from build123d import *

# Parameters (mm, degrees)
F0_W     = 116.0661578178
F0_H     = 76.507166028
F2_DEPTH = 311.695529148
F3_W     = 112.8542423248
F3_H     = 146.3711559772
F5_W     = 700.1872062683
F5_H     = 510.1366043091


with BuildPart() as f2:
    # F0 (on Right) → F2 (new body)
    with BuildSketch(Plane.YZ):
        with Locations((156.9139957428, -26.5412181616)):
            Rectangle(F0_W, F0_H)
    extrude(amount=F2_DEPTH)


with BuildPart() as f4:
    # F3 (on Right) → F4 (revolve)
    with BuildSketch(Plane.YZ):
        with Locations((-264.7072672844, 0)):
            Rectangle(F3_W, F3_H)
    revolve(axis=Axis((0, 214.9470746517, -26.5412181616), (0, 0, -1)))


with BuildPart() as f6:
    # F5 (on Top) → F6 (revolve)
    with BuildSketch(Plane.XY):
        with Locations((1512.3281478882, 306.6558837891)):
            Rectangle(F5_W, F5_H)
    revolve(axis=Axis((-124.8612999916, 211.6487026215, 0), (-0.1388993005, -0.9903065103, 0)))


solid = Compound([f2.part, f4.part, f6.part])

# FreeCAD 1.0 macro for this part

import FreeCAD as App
import Part
import Sketcher
Q = App.Units.Quantity

doc = App.newDocument("Part")
body = doc.addObject("PartDesign::Body", "Body")

# Sketch on YZ plane
sketch1 = body.newObject("Sketcher::SketchObject", "Sketch")
sketch1.AttachmentSupport = (doc.getObject("YZ_Plane"), [""])
sketch1.MapMode = "FlatFace"
sketch1.addGeometry([
    Part.LineSegment(App.Vector(99, 12, 0), App.Vector(99, -65, 0)),
    Part.LineSegment(App.Vector(99, -65, 0), App.Vector(215, -65, 0)),
    Part.LineSegment(App.Vector(215, -65, 0), App.Vector(215, 12, 0)),
    Part.LineSegment(App.Vector(215, 12, 0), App.Vector(99, 12, 0)),
], False)
sketch1.addConstraint([
    Sketcher.Constraint("Coincident", 0, 2, 1, 1),
    Sketcher.Constraint("Coincident", 1, 2, 2, 1),
    Sketcher.Constraint("Coincident", 2, 2, 3, 1),
    Sketcher.Constraint("Coincident", 3, 2, 0, 1),
    Sketcher.Constraint("Vertical", 0),
    Sketcher.Constraint("Horizontal", 1),
    Sketcher.Constraint("Vertical", 2),
    Sketcher.Constraint("Horizontal", 3),
    Sketcher.Constraint("DistanceY", 0, 2, -1, 1, Q("64.794801 mm")),
    Sketcher.Constraint("DistanceX", 1, 1, 1, 2, Q("116.066158 mm")),
    Sketcher.Constraint("DistanceY", 0, 2, 0, 1, Q("76.507166 mm")),
    Sketcher.Constraint("DistanceX", -1, 1, 0, 2, Q("98.880917 mm")),
])
pad1 = body.newObject("PartDesign::Pad", "Pad")
pad1.Profile = sketch1
pad1.Length = 311.695529
body2 = doc.addObject("PartDesign::Body", "Body001")

# Sketch on YZ plane
sketch2 = body2.newObject("Sketcher::SketchObject", "Sketch001")
sketch2.AttachmentSupport = (doc.getObject("YZ_Plane001"), [""])
sketch2.MapMode = "FlatFace"
sketch2.addGeometry([
    Part.LineSegment(App.Vector(-321, 73, 0), App.Vector(-321, -73, 0)),
    Part.LineSegment(App.Vector(-321, -73, 0), App.Vector(-208, -73, 0)),
    Part.LineSegment(App.Vector(-208, -73, 0), App.Vector(-208, 73, 0)),
    Part.LineSegment(App.Vector(-208, 73, 0), App.Vector(-321, 73, 0)),
], False)
sketch2.addGeometry(Part.LineSegment(App.Vector(215, 73, 0), App.Vector(215, -73, 0)), True)  # axis
sketch2.addConstraint([
    Sketcher.Constraint("Coincident", 0, 2, 1, 1),
    Sketcher.Constraint("Coincident", 1, 2, 2, 1),
    Sketcher.Constraint("Coincident", 2, 2, 3, 1),
    Sketcher.Constraint("Coincident", 3, 2, 0, 1),
    Sketcher.Constraint("Vertical", 0),
    Sketcher.Constraint("Horizontal", 1),
    Sketcher.Constraint("Vertical", 2),
    Sketcher.Constraint("Horizontal", 3),
    Sketcher.Constraint("Vertical", 4),
    Sketcher.Constraint("Horizontal", 3, 2, 4, 1),
    Sketcher.Constraint("Horizontal", 1, 2, 4, 2),
    Sketcher.Constraint("DistanceX", 1, 1, 1, 2, Q("112.854242 mm")),
    Sketcher.Constraint("DistanceY", 0, 2, 0, 1, Q("146.371156 mm")),
    Sketcher.Constraint("DistanceX", 0, 2, -1, 1, Q("321.134388 mm")),
    Sketcher.Constraint("DistanceX", 2, 2, 4, 1, Q("423.227221 mm")),
    Sketcher.Constraint("DistanceY", 0, 2, -1, 1, Q("73.185578 mm")),
])
revolution = body2.newObject("PartDesign::Revolution", "Revolution")
revolution.Profile = sketch2
revolution.ReferenceAxis = (sketch2, ["Axis0"])
revolution.Angle = 360
body3 = doc.addObject("PartDesign::Body", "Body002")

# Sketch on XY plane
sketch3 = body3.newObject("Sketcher::SketchObject", "Sketch002")
sketch3.AttachmentSupport = (doc.getObject("XY_Plane002"), [""])
sketch3.MapMode = "FlatFace"
sketch3.addGeometry([
    Part.LineSegment(App.Vector(1162, 562, 0), App.Vector(1162, 52, 0)),
    Part.LineSegment(App.Vector(1162, 52, 0), App.Vector(1862, 52, 0)),
    Part.LineSegment(App.Vector(1862, 52, 0), App.Vector(1862, 562, 0)),
    Part.LineSegment(App.Vector(1862, 562, 0), App.Vector(1162, 562, 0)),
], False)
sketch3.addGeometry(Part.LineSegment(App.Vector(-38, 828, 0), App.Vector(-122, 232, 0)), True)  # axis
sketch3.addConstraint([
    Sketcher.Constraint("Coincident", 0, 2, 1, 1),
    Sketcher.Constraint("Coincident", 1, 2, 2, 1),
    Sketcher.Constraint("Coincident", 2, 2, 3, 1),
    Sketcher.Constraint("Coincident", 3, 2, 0, 1),
    Sketcher.Constraint("Vertical", 0),
    Sketcher.Constraint("Horizontal", 1),
    Sketcher.Constraint("Vertical", 2),
    Sketcher.Constraint("Horizontal", 3),
    Sketcher.Constraint("DistanceY", 0, 2, 4, 1, Q("776.739101 mm")),
    Sketcher.Constraint("DistanceY", 4, 2, 3, 2, Q("330.004801 mm")),
    Sketcher.Constraint("DistanceX", 1, 1, 1, 2, Q("700.187206 mm")),
    Sketcher.Constraint("DistanceY", 0, 2, 0, 1, Q("510.136604 mm")),
    Sketcher.Constraint("DistanceY", -1, 1, 0, 2, Q("51.587582 mm")),
    Sketcher.Constraint("DistanceX", -1, 1, 1, 2, Q("1862.421751 mm")),
    Sketcher.Constraint("DistanceX", 4, 2, -1, 1, Q("122.046208 mm")),
    Sketcher.Constraint("DistanceX", 4, 1, 3, 2, Q("1200.601271 mm")),
])
revolution2 = body3.newObject("PartDesign::Revolution", "Revolution001")
revolution2.Profile = sketch3
revolution2.ReferenceAxis = (sketch3, ["Axis0"])
revolution2.Angle = 360

doc.recompute()
